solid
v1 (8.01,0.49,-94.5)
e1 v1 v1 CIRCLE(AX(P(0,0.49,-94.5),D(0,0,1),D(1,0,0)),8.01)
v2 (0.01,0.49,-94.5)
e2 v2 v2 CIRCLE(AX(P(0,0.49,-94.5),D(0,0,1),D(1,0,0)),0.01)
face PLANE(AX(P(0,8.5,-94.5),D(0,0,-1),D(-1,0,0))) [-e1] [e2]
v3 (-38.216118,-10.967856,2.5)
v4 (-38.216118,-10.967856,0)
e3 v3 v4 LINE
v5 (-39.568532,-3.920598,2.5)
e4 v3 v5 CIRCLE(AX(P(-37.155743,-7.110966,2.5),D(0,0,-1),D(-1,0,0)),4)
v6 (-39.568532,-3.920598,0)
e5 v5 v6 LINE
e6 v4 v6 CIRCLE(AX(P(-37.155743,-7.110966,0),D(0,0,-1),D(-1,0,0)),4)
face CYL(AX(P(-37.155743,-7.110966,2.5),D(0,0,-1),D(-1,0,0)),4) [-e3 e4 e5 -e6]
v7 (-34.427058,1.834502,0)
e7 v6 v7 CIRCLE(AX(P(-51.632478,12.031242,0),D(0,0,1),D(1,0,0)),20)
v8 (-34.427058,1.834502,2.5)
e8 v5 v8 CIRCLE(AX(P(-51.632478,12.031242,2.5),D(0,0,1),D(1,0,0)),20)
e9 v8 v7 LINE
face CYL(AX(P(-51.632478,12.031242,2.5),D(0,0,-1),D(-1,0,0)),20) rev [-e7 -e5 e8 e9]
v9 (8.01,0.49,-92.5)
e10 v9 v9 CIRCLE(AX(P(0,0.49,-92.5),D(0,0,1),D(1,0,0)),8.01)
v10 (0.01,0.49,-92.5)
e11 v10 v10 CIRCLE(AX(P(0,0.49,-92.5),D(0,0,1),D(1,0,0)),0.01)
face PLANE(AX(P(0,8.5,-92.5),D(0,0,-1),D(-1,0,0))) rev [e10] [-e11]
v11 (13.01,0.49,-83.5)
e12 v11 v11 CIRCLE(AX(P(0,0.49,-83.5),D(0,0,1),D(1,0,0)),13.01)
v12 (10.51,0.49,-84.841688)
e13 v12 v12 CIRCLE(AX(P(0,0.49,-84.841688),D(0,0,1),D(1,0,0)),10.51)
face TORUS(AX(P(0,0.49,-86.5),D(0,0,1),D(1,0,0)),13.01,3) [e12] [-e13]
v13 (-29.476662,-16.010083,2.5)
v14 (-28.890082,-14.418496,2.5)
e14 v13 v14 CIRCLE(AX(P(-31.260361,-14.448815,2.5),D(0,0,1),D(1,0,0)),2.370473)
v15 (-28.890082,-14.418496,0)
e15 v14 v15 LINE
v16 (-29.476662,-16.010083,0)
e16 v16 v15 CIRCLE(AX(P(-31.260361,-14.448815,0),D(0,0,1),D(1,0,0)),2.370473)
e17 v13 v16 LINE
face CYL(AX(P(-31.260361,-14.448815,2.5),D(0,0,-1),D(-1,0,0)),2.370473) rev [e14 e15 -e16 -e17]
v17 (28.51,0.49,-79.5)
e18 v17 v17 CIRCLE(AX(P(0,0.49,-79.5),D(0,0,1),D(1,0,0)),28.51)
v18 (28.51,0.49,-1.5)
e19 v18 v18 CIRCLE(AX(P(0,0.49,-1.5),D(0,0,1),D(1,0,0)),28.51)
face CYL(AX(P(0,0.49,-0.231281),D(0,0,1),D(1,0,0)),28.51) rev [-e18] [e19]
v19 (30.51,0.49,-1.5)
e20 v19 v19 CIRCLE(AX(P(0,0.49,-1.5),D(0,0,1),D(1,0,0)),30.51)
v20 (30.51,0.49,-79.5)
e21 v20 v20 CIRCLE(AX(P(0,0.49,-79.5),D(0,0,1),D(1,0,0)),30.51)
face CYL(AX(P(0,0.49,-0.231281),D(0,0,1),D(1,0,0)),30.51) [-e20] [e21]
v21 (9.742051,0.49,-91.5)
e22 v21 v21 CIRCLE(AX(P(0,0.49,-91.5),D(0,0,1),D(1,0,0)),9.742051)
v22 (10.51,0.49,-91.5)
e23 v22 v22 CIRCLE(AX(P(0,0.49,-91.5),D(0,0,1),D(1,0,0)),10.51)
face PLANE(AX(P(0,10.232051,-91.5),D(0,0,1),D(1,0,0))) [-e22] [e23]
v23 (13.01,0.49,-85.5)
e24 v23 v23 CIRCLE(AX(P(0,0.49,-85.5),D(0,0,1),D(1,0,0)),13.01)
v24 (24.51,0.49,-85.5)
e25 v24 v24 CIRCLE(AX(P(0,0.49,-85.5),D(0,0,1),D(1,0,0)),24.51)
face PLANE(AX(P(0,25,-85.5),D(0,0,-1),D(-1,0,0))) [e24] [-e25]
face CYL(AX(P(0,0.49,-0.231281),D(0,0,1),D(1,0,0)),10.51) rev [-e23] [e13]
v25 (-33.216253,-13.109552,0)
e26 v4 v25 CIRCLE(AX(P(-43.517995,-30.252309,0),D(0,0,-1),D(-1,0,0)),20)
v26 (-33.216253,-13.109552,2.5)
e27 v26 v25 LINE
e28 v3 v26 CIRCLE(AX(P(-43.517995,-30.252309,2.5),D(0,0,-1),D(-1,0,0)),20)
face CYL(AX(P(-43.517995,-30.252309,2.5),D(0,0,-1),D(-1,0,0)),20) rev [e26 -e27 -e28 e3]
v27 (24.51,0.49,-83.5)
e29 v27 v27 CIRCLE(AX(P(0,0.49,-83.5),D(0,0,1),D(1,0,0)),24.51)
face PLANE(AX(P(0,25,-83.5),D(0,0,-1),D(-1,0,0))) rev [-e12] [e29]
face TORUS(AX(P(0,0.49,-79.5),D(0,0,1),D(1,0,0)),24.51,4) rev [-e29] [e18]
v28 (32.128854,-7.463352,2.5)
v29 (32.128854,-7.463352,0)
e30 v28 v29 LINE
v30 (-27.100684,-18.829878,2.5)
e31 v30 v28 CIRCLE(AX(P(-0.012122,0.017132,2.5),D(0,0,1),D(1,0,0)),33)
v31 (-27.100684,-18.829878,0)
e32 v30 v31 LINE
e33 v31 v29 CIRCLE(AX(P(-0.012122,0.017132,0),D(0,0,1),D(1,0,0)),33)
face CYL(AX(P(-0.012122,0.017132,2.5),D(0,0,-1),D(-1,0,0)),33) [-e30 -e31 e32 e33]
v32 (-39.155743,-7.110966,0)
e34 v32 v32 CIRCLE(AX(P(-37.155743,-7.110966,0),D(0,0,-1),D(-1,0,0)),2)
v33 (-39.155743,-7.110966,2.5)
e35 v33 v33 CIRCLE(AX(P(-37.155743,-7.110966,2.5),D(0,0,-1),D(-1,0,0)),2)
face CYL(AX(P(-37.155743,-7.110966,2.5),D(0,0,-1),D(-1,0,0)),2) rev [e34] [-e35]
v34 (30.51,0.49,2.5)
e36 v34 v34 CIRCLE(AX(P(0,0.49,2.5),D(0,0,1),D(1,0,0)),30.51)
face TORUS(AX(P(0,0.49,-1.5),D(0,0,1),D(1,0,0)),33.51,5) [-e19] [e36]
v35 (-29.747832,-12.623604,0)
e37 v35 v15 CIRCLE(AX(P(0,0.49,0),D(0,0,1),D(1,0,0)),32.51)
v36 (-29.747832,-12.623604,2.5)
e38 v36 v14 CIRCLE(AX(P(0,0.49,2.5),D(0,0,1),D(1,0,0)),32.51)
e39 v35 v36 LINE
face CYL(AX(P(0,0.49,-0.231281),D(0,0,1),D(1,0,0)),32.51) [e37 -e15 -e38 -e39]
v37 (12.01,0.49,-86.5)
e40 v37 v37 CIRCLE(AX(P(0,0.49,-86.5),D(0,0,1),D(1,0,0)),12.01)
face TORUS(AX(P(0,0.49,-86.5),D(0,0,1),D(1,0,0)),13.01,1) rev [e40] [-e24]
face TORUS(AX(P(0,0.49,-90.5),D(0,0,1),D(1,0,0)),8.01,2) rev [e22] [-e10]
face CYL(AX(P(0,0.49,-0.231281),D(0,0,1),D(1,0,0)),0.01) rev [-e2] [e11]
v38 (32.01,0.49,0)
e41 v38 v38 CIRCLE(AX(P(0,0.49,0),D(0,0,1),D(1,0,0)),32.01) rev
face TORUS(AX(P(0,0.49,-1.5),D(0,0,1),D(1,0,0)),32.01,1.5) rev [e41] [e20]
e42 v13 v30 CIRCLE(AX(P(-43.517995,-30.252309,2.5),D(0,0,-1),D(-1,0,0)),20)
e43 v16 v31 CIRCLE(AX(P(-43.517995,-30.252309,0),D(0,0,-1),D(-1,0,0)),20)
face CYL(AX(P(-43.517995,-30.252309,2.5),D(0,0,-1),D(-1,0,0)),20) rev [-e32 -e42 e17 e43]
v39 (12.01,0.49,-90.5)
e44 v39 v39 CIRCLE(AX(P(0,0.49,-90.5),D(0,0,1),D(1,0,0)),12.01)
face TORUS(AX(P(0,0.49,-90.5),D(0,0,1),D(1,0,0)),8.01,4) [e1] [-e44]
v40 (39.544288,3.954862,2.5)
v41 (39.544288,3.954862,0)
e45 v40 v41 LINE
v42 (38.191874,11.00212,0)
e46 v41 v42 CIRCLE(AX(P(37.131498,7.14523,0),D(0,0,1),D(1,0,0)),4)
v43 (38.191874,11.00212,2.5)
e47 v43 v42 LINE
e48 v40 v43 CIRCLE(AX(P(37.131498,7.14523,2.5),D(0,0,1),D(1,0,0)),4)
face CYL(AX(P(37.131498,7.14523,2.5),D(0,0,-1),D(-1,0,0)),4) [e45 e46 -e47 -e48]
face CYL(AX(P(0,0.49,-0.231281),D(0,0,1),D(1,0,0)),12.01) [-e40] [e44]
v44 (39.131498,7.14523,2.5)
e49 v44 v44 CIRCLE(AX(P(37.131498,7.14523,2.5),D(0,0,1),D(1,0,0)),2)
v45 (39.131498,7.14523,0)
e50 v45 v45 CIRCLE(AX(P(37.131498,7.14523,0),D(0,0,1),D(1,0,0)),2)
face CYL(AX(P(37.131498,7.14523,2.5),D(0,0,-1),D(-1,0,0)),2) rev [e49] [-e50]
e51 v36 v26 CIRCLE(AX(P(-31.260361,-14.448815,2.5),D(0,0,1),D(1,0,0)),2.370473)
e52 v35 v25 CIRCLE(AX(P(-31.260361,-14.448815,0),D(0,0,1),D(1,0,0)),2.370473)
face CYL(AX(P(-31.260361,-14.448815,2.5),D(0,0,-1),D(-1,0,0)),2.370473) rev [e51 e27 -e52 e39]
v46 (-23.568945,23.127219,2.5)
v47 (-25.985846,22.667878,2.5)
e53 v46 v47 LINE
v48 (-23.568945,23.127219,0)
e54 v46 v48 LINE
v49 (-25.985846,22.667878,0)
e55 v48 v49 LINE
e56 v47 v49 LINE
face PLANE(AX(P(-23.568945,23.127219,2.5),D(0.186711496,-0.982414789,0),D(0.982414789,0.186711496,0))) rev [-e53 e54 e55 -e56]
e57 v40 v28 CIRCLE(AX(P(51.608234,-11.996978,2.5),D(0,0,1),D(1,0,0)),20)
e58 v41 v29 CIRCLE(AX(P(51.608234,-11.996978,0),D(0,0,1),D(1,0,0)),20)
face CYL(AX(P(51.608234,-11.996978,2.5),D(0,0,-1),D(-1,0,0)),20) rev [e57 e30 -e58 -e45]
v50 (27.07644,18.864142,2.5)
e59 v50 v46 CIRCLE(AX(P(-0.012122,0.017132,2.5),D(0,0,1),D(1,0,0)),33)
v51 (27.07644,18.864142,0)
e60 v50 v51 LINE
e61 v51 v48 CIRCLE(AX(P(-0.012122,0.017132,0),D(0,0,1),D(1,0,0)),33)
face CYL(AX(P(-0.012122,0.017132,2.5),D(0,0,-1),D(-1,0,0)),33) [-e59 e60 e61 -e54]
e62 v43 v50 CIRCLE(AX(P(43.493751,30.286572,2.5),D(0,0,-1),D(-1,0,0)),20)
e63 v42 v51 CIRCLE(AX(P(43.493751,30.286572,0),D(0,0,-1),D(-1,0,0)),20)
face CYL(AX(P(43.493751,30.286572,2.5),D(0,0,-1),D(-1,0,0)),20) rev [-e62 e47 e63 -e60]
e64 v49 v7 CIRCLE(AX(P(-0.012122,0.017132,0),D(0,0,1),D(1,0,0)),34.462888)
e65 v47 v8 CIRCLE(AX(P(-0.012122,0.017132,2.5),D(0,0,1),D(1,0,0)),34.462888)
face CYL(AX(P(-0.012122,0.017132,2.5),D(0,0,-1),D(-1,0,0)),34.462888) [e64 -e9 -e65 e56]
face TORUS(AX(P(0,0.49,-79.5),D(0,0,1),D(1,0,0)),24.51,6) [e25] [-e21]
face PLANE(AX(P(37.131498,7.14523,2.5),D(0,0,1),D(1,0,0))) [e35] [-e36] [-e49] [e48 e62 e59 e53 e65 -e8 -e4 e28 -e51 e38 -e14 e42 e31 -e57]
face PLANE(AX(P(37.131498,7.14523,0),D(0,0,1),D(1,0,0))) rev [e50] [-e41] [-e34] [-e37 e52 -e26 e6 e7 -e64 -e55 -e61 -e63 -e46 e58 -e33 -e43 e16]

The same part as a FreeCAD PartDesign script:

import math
import FreeCAD as App
import Part
import Sketcher
from FreeCAD import Vector
Q = App.Units.Quantity

doc = App.newDocument("Part")
body = doc.addObject("PartDesign::Body", "Body")

sketch1 = body.newObject("Sketcher::SketchObject", "Sketch")
sketch1.AttachmentSupport = (doc.getObject("XY_Plane"), [""])
sketch1.MapMode = "FlatFace"
sketch1.addGeometry([
    Part.LineSegment(Vector(-23.6, 23.1, 0), Vector(-26, 22.7, 0)),
    Part.ArcOfCircle(Part.Circle(Vector(0, 0, 0), Vector(0, 0, 1), 34.5), math.radians(139), math.radians(177)),
    Part.ArcOfCircle(Part.Circle(Vector(-51.6, 12, 0), Vector(0, 0, 1), 20), math.radians(-53), math.radians(-31)),
    Part.ArcOfCircle(Part.Circle(Vector(-37.2, -7.1, 0), Vector(0, 0, 1), 4), math.radians(127), math.radians(255)),
    Part.ArcOfCircle(Part.Circle(Vector(-43.5, -30.3, 0), Vector(0, 0, 1), 20), math.radians(59), math.radians(74.63)),
    Part.ArcOfCircle(Part.Circle(Vector(-31.3, -14.4, 0), Vector(0, 0, 1), 2.4), math.radians(-41), math.radians(146)),
    Part.ArcOfCircle(Part.Circle(Vector(-43.5, -30.3, 0), Vector(0, 0, 1), 20), math.radians(34.83), math.radians(45.41)),
    Part.ArcOfCircle(Part.Circle(Vector(0, 0, 0), Vector(0, 0, 1), 33), math.radians(-145), math.radians(-13)),
    Part.ArcOfCircle(Part.Circle(Vector(51.6, -12, 0), Vector(0, 0, 1), 20), math.radians(127), math.radians(167)),
    Part.ArcOfCircle(Part.Circle(Vector(37.1, 7.1, 0), Vector(0, 0, 1), 4), math.radians(-53), math.radians(75)),
    Part.ArcOfCircle(Part.Circle(Vector(43.5, 30.3, 0), Vector(0, 0, 1), 20), math.radians(-145), math.radians(-105)),
    Part.ArcOfCircle(Part.Circle(Vector(0, 0, 0), Vector(0, 0, 1), 33), math.radians(35), math.radians(136)),
    Part.Circle(Vector(-37.2, -7.1, 0), Vector(0, 0, 1), 2),
    Part.Circle(Vector(0, 0, 0), Vector(0, 0, 1), 31),
    Part.Circle(Vector(37.1, 7.1, 0), Vector(0, 0, 1), 2),
], False)
sketch1.addConstraint([
    Sketcher.Constraint("Coincident", 0, 2, 1, 1),
    Sketcher.Constraint("Coincident", 1, 2, 2, 2),
    Sketcher.Constraint("Tangent", 2, 1, 3, 1),
    Sketcher.Constraint("Tangent", 3, 2, 4, 2),
    Sketcher.Constraint("Coincident", 4, 1, 5, 2),
    Sketcher.Constraint("Coincident", 5, 1, 6, 2),
    Sketcher.Constraint("Tangent", 6, 1, 7, 1),
    Sketcher.Constraint("Tangent", 7, 2, 8, 2),
    Sketcher.Constraint("Tangent", 8, 1, 9, 1),
    Sketcher.Constraint("Tangent", 9, 2, 10, 2),
    Sketcher.Constraint("Tangent", 10, 1, 11, 1),
    Sketcher.Constraint("Coincident", 11, 2, 0, 1),
    Sketcher.Constraint("Coincident", 6, 3, 4, 3),
    Sketcher.Constraint("Coincident", 7, 3, 1, 3),
    Sketcher.Constraint("Coincident", 11, 3, 1, 3),
    Sketcher.Constraint("Coincident", 12, 3, 3, 3),
    Sketcher.Constraint("Coincident", 13, 3, 1, 3),
    Sketcher.Constraint("Coincident", 14, 3, 9, 3),
    Sketcher.Constraint("Equal", 2, 4),
    Sketcher.Constraint("Equal", 4, 6),
    Sketcher.Constraint("Equal", 6, 8),
    Sketcher.Constraint("Equal", 3, 9),
    Sketcher.Constraint("Equal", 8, 10),
    Sketcher.Constraint("Equal", 7, 11),
    Sketcher.Constraint("Equal", 12, 14),
    Sketcher.Constraint("Diameter", 12, Q("4 mm")),
    Sketcher.Constraint("Diameter", 13, Q("62 mm")),
    Sketcher.Constraint("Radius", 2, Q("20 mm")),
    Sketcher.Constraint("Radius", 3, Q("4 mm")),
    Sketcher.Constraint("Radius", 7, Q("33 mm")),
    Sketcher.Constraint("Radius", 1, Q("34.462888 mm")),
    Sketcher.Constraint("Radius", 5, Q("2.370473 mm")),
    Sketcher.Constraint("DistanceX", -1, 1, 9, 3, Q("37.131498 mm")),
    Sketcher.Constraint("DistanceY", 2, 1, 1, 2, Q("5.7551 mm")),
    Sketcher.Constraint("DistanceX", 5, 3, 5, 1, Q("1.783699 mm")),
    Sketcher.Constraint("DistanceX", 0, 2, 11, 2, Q("2.416901 mm")),
    Sketcher.Constraint("DistanceY", -1, 1, 1, 3, Q("0.017132 mm")),
    Sketcher.Constraint("DistanceX", 2, 3, -1, 1, Q("51.632478 mm")),
    Sketcher.Constraint("DistanceY", 4, 3, -1, 1, Q("30.252309 mm")),
    Sketcher.Constraint("DistanceX", 5, 3, -1, 1, Q("31.260361 mm")),
    Sketcher.Constraint("DistanceY", 8, 3, -1, 1, Q("11.996978 mm")),
    Sketcher.Constraint("DistanceY", -1, 1, 9, 3, Q("7.14523 mm")),
    Sketcher.Constraint("DistanceY", -1, 1, 11, 2, Q("23.127219 mm")),
])
pad1 = body.newObject("PartDesign::Pad", "Pad")
pad1.Profile = sketch1
pad1.Length = 2.5

sketch2 = body.newObject("Sketcher::SketchObject", "Sketch001")
sketch2.AttachmentSupport = (doc.getObject("YZ_Plane"), [""])
sketch2.MapMode = "FlatFace"
sketch2.addGeometry([
    Part.LineSegment(Vector(32.5, 0, 0), Vector(33, 0, 0)),
    Part.LineSegment(Vector(33, 0, 0), Vector(33, 2.5, 0)),
    Part.LineSegment(Vector(33, 2.5, 0), Vector(31, 2.5, 0)),
    Part.ArcOfCircle(Part.Circle(Vector(34, -1.5, 0), Vector(0, 0, 1), 5), math.radians(127), math.radians(180)),
    Part.LineSegment(Vector(29, -1.5, 0), Vector(29, -79.5, 0)),
    Part.ArcOfCircle(Part.Circle(Vector(25, -79.5, 0), Vector(0, 0, 1), 4), math.radians(-90), math.radians(0)),
    Part.LineSegment(Vector(25, -83.5, 0), Vector(13.5, -83.5, 0)),
    Part.ArcOfCircle(Part.Circle(Vector(13.5, -86.5, 0), Vector(0, 0, 1), 3), math.radians(90), math.radians(146)),
    Part.LineSegment(Vector(11, -84.8, 0), Vector(11, -91.5, 0)),
    Part.LineSegment(Vector(11, -91.5, 0), Vector(10.2, -91.5, 0)),
    Part.ArcOfCircle(Part.Circle(Vector(8.5, -90.5, 0), Vector(0, 0, 1), 2), math.radians(-90), math.radians(-30)),
    Part.LineSegment(Vector(8.5, -92.5, 0), Vector(0.5, -92.5, 0)),
    Part.LineSegment(Vector(0.5, -92.5, 0), Vector(0.5, -94.5, 0)),
    Part.LineSegment(Vector(0.5, -94.5, 0), Vector(8.5, -94.5, 0)),
    Part.ArcOfCircle(Part.Circle(Vector(8.5, -90.5, 0), Vector(0, 0, 1), 4), math.radians(-90), math.radians(0)),
    Part.LineSegment(Vector(12.5, -90.5, 0), Vector(12.5, -86.5, 0)),
    Part.ArcOfCircle(Part.Circle(Vector(13.5, -86.5, 0), Vector(0, 0, 1), 1), math.radians(90), math.radians(180)),
    Part.LineSegment(Vector(13.5, -85.5, 0), Vector(25, -85.5, 0)),
    Part.ArcOfCircle(Part.Circle(Vector(25, -79.5, 0), Vector(0, 0, 1), 6), math.radians(-90), math.radians(0)),
    Part.LineSegment(Vector(31, -79.5, 0), Vector(31, -1.5, 0)),
    Part.ArcOfCircle(Part.Circle(Vector(32.5, -1.5, 0), Vector(0, 0, 1), 1.5), math.radians(90), math.radians(180)),
], False)
sketch2.addGeometry(Part.LineSegment(Vector(0.5, 2.5, 0), Vector(0.5, -94.5, 0)), True)
sketch2.addConstraint([
    Sketcher.Constraint("Coincident", 0, 2, 1, 1),
    Sketcher.Constraint("Coincident", 1, 2, 2, 1),
    Sketcher.Constraint("Coincident", 2, 2, 3, 1),
    Sketcher.Constraint("Tangent", 3, 2, 4, 1),
    Sketcher.Constraint("Tangent", 4, 2, 5, 2),
    Sketcher.Constraint("Tangent", 5, 1, 6, 1),
    Sketcher.Constraint("Tangent", 6, 2, 7, 1),
    Sketcher.Constraint("Coincident", 7, 2, 8, 1),
    Sketcher.Constraint("Coincident", 8, 2, 9, 1),
    Sketcher.Constraint("Coincident", 9, 2, 10, 2),
    Sketcher.Constraint("Tangent", 10, 1, 11, 1),
    Sketcher.Constraint("Coincident", 11, 2, 12, 1),
    Sketcher.Constraint("Coincident", 12, 2, 13, 1),
    Sketcher.Constraint("Tangent", 13, 2, 14, 1),
    Sketcher.Constraint("Tangent", 14, 2, 15, 1),
    Sketcher.Constraint("Tangent", 15, 2, 16, 2),
    Sketcher.Constraint("Tangent", 16, 1, 17, 1),
    Sketcher.Constraint("Tangent", 17, 2, 18, 1),
    Sketcher.Constraint("Tangent", 18, 2, 19, 1),
    Sketcher.Constraint("Tangent", 19, 2, 20, 2),
    Sketcher.Constraint("Tangent", 20, 1, 0, 1),
    Sketcher.Constraint("Horizontal", 0),
    Sketcher.Constraint("Vertical", 1),
    Sketcher.Constraint("Horizontal", 2),
    Sketcher.Constraint("Vertical", 4),
    Sketcher.Constraint("Horizontal", 6),
    Sketcher.Constraint("Vertical", 8),
    Sketcher.Constraint("Horizontal", 9),
    Sketcher.Constraint("Horizontal", 11),
    Sketcher.Constraint("Vertical", 12),
    Sketcher.Constraint("Horizontal", 13),
    Sketcher.Constraint("Vertical", 15),
    Sketcher.Constraint("Horizontal", 17),
    Sketcher.Constraint("Vertical", 19),
    Sketcher.Constraint("Vertical", 21),
    Sketcher.Constraint("Coincident", 14, 3, 10, 3),
    Sketcher.Constraint("Coincident", 16, 3, 7, 3),
    Sketcher.Constraint("Coincident", 18, 3, 5, 3),
    Sketcher.Constraint("Equal", 5, 14),
    Sketcher.Constraint("PointOnObject", 0, 2, -1),
    Sketcher.Constraint("Horizontal", 3, 3, 20, 3),
    Sketcher.Constraint("Horizontal", 2, 2, 21, 1),
    Sketcher.Constraint("Horizontal", 13, 2, 21, 2),
    Sketcher.Constraint("Vertical", 2, 2, 18, 2),
    Sketcher.Constraint("Equal", 2, 12),
    Sketcher.Constraint("Radius", 3, Q("5 mm")),
    Sketcher.Constraint("Radius", 5, Q("4 mm")),
    Sketcher.Constraint("Radius", 7, Q("3 mm")),
    Sketcher.Constraint("Radius", 10, Q("2 mm")),
    Sketcher.Constraint("Radius", 16, Q("1 mm")),
    Sketcher.Constraint("Radius", 20, Q("1.5 mm")),
    Sketcher.Constraint("DistanceX", 11, 2, 11, 1, Q("8 mm")),
    Sketcher.Constraint("DistanceY", 4, 2, 4, 1, Q("78 mm")),
    Sketcher.Constraint("DistanceY", 15, 1, 15, 2, Q("4 mm")),
    Sketcher.Constraint("DistanceX", 6, 2, 6, 1, Q("11.5 mm")),
    Sketcher.Constraint("DistanceX", -1, 1, 3, 3, Q("34 mm")),
    Sketcher.Constraint("DistanceX", -1, 1, 7, 2, Q("11 mm")),
    Sketcher.Constraint("DistanceY", 8, 2, 10, 3, Q("1 mm")),
    Sketcher.Constraint("DistanceX", -1, 1, 21, 1, Q("0.49 mm")),
])
revolution = body.newObject("PartDesign::Revolution", "Revolution")
revolution.Profile = sketch2
revolution.ReferenceAxis = (sketch2, ["Axis0"])
revolution.Angle = 360

doc.recompute()
